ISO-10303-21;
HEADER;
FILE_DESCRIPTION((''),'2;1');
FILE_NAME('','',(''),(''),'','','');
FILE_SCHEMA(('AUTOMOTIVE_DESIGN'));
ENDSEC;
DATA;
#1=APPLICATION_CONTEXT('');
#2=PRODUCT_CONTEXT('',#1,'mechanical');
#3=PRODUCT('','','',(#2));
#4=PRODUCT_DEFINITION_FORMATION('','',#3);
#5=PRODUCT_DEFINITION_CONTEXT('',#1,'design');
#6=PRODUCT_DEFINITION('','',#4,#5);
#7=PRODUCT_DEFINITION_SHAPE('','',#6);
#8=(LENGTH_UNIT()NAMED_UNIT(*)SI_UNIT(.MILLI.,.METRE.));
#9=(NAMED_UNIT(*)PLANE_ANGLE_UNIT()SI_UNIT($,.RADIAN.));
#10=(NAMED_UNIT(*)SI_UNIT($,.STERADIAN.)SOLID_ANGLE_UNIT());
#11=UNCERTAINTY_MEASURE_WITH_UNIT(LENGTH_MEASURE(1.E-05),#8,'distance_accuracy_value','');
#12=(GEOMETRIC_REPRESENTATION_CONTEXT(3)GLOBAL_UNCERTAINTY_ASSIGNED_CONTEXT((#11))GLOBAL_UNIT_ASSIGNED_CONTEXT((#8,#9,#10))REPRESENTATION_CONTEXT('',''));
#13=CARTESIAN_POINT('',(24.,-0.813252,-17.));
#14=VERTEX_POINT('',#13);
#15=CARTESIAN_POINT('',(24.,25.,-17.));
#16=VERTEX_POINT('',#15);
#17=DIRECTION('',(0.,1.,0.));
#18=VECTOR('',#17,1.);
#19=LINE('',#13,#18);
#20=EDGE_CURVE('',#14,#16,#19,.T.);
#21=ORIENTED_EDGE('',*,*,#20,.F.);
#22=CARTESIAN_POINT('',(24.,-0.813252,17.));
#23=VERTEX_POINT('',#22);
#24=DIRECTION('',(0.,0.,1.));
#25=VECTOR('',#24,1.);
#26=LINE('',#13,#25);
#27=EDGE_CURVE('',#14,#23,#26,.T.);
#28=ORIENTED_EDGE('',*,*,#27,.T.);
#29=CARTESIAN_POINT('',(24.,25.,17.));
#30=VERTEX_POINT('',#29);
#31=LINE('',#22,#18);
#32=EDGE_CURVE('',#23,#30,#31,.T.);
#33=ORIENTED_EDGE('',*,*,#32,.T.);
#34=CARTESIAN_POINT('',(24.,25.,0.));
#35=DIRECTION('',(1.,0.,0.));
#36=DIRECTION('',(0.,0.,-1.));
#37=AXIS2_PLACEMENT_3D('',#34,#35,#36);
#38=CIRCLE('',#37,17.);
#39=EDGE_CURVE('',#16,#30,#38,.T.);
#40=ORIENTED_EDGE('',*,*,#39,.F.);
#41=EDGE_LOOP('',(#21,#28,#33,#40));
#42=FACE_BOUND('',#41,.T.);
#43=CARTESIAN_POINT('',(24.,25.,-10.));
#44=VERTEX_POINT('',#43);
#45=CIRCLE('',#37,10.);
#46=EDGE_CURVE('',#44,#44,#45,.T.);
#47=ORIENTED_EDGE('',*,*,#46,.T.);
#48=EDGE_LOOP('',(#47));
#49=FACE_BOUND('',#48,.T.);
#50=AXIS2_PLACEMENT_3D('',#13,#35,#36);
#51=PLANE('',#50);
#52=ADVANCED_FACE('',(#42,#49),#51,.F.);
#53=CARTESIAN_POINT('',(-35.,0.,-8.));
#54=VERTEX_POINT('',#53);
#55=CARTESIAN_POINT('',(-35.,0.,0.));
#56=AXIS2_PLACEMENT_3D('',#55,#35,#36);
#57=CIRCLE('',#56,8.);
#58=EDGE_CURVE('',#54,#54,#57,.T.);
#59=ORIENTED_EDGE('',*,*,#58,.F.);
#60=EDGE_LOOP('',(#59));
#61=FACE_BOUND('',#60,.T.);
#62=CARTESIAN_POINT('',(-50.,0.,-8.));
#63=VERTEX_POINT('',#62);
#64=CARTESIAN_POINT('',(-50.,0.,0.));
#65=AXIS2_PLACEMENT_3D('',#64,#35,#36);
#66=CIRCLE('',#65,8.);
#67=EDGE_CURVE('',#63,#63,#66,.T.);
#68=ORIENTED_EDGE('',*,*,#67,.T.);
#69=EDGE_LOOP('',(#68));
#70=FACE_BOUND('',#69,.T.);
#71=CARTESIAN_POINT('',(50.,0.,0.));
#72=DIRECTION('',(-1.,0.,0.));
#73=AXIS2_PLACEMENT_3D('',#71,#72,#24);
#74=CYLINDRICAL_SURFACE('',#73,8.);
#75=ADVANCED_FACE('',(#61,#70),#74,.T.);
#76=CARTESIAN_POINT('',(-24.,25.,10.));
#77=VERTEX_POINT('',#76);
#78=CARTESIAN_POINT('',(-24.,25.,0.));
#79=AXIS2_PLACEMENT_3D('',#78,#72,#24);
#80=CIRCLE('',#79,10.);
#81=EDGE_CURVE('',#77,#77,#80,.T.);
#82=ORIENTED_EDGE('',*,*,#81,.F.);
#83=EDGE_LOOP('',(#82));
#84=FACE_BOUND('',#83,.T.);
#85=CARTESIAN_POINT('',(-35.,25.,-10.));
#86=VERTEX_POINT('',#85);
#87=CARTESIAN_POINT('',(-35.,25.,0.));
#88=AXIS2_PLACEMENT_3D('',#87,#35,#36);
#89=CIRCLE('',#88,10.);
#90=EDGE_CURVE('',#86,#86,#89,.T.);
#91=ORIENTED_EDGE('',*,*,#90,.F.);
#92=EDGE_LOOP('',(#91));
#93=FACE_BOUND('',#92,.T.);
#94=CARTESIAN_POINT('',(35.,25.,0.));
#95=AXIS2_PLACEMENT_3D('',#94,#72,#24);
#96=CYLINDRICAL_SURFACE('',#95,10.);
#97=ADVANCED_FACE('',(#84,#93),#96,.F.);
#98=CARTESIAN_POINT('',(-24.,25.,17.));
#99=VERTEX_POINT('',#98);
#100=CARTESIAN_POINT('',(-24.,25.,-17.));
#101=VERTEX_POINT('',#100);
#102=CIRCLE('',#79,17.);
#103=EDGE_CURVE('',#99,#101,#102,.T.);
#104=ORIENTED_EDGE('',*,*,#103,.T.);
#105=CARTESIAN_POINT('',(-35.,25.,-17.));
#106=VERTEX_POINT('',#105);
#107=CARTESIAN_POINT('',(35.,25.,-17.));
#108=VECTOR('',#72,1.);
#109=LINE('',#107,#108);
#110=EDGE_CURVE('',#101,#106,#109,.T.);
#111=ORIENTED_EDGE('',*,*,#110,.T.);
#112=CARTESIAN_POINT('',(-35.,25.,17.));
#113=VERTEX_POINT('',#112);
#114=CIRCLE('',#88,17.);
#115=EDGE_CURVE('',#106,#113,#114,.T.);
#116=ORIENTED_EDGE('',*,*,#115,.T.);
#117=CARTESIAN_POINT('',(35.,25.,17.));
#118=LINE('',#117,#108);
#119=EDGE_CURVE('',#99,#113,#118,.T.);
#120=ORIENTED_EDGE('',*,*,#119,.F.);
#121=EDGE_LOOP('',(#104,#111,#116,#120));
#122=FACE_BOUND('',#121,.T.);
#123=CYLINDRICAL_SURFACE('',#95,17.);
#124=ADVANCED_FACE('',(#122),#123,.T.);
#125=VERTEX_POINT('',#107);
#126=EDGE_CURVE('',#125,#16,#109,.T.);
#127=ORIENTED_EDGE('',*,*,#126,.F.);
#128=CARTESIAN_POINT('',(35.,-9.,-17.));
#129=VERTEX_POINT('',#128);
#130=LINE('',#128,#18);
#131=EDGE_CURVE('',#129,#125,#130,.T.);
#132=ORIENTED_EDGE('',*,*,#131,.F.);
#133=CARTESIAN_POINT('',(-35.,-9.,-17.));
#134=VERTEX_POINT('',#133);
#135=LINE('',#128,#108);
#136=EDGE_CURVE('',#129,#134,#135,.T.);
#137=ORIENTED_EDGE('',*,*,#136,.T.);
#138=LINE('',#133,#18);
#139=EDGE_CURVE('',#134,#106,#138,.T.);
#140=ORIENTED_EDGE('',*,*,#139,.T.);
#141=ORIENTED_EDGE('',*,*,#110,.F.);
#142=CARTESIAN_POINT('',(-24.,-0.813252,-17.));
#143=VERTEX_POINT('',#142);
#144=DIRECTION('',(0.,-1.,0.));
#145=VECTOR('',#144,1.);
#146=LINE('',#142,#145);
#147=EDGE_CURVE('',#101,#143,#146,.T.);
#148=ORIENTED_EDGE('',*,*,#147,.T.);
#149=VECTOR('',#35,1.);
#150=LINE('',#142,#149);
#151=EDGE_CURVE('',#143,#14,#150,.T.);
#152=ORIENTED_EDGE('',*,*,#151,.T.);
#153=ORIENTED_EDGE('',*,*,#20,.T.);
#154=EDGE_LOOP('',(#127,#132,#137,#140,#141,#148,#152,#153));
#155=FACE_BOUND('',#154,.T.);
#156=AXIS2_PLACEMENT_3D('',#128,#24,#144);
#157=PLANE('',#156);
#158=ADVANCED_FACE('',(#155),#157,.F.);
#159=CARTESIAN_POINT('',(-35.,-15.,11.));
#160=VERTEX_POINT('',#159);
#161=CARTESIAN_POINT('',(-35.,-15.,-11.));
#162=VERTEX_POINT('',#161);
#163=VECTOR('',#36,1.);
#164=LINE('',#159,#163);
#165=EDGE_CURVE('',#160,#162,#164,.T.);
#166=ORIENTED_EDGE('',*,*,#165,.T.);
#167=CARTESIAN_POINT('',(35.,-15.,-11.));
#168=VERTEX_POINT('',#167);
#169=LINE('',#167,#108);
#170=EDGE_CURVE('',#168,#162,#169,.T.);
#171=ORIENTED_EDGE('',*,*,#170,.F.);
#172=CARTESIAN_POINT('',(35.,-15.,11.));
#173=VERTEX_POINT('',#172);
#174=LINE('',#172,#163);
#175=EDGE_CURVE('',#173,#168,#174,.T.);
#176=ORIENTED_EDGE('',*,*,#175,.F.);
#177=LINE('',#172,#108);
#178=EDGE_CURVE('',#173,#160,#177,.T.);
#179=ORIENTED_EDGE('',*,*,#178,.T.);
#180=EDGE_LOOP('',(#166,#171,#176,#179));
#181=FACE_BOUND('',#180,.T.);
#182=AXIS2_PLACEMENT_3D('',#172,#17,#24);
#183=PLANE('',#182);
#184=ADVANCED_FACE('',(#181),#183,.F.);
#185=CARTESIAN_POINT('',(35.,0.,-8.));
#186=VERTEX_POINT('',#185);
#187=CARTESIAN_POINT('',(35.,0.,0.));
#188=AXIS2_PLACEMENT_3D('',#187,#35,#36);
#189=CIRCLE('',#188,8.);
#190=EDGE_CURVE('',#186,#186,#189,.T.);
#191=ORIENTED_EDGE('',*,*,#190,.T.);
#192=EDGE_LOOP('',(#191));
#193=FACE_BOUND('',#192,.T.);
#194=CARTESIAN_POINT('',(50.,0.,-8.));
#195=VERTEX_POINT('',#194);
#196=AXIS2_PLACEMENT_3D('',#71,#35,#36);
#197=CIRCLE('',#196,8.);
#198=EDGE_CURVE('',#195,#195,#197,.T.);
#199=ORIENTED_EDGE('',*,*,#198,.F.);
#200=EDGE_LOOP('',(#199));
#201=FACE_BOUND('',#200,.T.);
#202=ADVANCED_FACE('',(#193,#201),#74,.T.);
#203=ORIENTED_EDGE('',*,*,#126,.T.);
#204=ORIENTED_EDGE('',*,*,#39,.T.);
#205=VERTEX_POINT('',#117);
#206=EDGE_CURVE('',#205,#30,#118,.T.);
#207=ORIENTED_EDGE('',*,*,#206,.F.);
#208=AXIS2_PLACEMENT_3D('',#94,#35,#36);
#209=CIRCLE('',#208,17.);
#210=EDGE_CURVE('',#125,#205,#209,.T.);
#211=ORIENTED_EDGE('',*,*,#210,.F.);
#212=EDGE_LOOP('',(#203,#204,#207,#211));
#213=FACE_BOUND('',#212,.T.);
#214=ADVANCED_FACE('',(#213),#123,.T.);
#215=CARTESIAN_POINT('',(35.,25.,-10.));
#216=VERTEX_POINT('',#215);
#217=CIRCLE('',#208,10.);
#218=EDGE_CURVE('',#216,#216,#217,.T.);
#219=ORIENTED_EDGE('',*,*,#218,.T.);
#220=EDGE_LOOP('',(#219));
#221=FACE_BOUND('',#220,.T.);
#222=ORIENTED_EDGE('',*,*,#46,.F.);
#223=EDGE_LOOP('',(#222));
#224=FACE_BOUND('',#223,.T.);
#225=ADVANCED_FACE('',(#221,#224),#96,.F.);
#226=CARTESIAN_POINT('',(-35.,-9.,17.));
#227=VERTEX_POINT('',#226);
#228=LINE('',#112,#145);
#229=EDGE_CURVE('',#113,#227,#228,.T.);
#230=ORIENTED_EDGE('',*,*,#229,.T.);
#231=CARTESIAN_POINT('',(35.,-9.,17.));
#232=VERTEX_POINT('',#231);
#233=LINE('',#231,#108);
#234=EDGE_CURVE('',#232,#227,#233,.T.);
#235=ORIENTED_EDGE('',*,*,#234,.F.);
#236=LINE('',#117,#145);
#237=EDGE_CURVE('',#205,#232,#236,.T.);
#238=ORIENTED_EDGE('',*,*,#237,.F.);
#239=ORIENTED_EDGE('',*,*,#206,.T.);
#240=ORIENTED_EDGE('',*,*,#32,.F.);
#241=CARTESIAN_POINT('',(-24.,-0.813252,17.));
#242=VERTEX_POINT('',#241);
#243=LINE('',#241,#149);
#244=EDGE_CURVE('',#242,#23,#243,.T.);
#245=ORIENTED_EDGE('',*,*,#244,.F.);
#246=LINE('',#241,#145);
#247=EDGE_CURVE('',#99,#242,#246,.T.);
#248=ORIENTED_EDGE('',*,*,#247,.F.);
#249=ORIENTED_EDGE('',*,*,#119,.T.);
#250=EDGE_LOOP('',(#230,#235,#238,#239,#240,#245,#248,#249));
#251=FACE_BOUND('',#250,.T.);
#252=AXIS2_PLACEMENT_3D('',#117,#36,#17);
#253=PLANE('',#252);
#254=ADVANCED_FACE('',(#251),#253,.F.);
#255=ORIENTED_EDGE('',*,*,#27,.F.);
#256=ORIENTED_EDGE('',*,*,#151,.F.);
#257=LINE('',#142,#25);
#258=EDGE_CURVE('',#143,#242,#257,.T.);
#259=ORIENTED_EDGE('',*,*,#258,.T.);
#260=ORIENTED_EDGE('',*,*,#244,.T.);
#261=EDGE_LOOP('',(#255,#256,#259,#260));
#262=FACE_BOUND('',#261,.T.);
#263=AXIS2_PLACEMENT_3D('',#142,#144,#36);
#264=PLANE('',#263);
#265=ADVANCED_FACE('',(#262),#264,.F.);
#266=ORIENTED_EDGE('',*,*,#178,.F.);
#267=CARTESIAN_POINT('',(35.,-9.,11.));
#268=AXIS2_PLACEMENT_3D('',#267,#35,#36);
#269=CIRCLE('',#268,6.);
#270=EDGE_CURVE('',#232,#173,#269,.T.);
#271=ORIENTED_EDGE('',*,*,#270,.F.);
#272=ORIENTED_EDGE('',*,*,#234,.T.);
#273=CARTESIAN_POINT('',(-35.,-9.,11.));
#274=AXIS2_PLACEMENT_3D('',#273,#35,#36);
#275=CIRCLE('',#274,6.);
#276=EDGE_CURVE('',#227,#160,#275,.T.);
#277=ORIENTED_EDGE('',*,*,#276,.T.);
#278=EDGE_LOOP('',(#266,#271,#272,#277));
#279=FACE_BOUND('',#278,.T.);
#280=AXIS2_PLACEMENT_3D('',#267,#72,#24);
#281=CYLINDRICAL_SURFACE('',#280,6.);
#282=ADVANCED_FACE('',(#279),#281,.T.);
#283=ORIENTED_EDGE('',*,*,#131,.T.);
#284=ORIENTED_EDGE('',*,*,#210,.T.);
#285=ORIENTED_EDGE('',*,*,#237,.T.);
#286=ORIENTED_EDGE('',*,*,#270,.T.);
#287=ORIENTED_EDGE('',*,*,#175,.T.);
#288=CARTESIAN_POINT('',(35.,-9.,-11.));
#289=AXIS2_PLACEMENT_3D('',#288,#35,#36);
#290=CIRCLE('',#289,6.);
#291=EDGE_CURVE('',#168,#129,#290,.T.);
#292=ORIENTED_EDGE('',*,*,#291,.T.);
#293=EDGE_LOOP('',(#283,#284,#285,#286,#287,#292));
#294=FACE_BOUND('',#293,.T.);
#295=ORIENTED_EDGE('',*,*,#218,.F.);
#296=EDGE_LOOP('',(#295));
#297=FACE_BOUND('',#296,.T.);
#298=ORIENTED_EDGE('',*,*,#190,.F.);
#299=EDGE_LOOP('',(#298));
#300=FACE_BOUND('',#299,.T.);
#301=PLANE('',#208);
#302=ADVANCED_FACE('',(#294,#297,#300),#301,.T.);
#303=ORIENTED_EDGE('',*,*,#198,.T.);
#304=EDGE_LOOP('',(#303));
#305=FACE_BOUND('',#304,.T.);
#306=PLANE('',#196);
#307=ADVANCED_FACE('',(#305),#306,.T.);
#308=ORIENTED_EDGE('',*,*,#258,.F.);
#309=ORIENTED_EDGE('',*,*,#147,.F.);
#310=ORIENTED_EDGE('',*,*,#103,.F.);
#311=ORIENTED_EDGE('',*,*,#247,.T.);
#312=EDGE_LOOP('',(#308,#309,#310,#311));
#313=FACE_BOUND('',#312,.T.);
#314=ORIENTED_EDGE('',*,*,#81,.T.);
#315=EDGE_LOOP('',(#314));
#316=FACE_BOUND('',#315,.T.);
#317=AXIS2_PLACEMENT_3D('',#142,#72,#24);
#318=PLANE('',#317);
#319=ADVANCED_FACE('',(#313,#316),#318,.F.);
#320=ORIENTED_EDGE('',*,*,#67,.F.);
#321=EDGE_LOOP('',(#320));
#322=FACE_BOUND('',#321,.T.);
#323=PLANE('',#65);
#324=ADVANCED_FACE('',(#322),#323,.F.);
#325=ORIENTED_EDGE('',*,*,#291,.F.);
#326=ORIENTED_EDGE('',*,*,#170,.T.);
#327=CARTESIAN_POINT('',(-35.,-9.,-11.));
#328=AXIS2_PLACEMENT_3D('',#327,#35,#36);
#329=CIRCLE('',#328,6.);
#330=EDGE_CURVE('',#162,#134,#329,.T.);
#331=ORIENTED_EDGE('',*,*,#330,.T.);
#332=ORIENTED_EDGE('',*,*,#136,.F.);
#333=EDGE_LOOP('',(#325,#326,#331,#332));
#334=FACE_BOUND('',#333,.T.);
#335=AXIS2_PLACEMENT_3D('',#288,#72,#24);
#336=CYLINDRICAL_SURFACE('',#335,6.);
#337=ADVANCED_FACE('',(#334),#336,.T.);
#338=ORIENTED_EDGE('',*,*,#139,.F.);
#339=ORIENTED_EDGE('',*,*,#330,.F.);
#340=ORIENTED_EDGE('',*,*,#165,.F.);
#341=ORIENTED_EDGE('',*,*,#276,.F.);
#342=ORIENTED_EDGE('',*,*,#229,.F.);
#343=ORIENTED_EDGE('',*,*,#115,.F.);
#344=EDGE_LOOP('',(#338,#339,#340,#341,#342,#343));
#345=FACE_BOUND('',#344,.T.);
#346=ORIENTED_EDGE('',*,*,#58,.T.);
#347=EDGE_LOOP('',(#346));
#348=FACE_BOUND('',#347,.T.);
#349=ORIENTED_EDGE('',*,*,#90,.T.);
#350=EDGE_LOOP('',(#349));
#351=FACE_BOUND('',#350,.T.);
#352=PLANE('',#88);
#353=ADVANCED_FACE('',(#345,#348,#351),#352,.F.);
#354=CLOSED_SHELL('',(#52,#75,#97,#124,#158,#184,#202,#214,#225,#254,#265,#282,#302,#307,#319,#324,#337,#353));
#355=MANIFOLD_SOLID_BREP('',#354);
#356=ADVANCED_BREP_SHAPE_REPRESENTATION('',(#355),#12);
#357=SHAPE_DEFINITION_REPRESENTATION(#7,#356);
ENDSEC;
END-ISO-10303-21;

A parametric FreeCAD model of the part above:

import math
import FreeCAD as App
import Part
import Sketcher
Q = App.Units.Quantity


def add_polygon(sketch, points):
    """Adds a closed chain of lines whose ends are joined by coincident constraints."""
    first, n = sketch.GeometryCount, len(points)
    for a, b in zip(points, points[1:] + points[:1]):
        sketch.addGeometry(Part.LineSegment(App.Vector(*a, 0), App.Vector(*b, 0)), False)
    for i in range(n):
        sketch.addConstraint(Sketcher.Constraint("Coincident", first + i, 2, first + (i + 1) % n, 1))

doc = App.newDocument("Part")
body = doc.addObject("PartDesign::Body", "Body")

# Sketch on YZ plane
sketch1 = doc.addObject("Sketcher::SketchObject", "Sketch")
body.addObject(sketch1)
sketch1.AttachmentSupport = (doc.YZ_Plane, [""])
sketch1.MapMode = "FlatFace"
sketch1.addGeometry(Part.Circle(App.Vector(0, 0, 0), App.Vector(0, 0, 1), 8), False)
sketch1.addConstraint(Sketcher.Constraint("Coincident", 0, 3, -1, 1))
sketch1.addConstraint(Sketcher.Constraint("Diameter", 0, Q("16 mm")))
pad1 = doc.addObject("PartDesign::Pad", "Pad")
body.addObject(pad1)
pad1.Profile = sketch1
pad1.Length = 100
pad1.Midplane = True

# Sketch on YZ plane
sketch2 = doc.addObject("Sketcher::SketchObject", "Sketch001")
body.addObject(sketch2)
sketch2.AttachmentSupport = (doc.YZ_Plane, [""])
sketch2.MapMode = "FlatFace"
sketch2.addGeometry(Part.LineSegment(App.Vector(-15, 11, 0), App.Vector(-15, -11, 0)), False)
sketch2.addGeometry(Part.ArcOfCircle(Part.Circle(App.Vector(-9, -11, 0), App.Vector(0, 0, 1), 6), math.radians(180), math.radians(270)), False)
sketch2.addGeometry(Part.LineSegment(App.Vector(-9, -17, 0), App.Vector(25, -17, 0)), False)
sketch2.addGeometry(Part.ArcOfCircle(Part.Circle(App.Vector(25, 0, 0), App.Vector(0, 0, 1), 17), math.radians(-90), math.radians(90)), False)
sketch2.addGeometry(Part.LineSegment(App.Vector(25, 17, 0), App.Vector(-9, 17, 0)), False)
sketch2.addGeometry(Part.ArcOfCircle(Part.Circle(App.Vector(-9, 11, 0), App.Vector(0, 0, 1), 6), math.radians(90), math.radians(180)), False)
sketch2.addGeometry(Part.Circle(App.Vector(25, 0, 0), App.Vector(0, 0, 1), 10), False)
sketch2.addConstraint(Sketcher.Constraint("Tangent", 0, 2, 1, 1))
sketch2.addConstraint(Sketcher.Constraint("Tangent", 1, 2, 2, 1))
sketch2.addConstraint(Sketcher.Constraint("Tangent", 2, 2, 3, 1))
sketch2.addConstraint(Sketcher.Constraint("Tangent", 3, 2, 4, 1))
sketch2.addConstraint(Sketcher.Constraint("Tangent", 4, 2, 5, 1))
sketch2.addConstraint(Sketcher.Constraint("Tangent", 5, 2, 0, 1))
sketch2.addConstraint(Sketcher.Constraint("Vertical", 0))
sketch2.addConstraint(Sketcher.Constraint("Horizontal", 2))
sketch2.addConstraint(Sketcher.Constraint("Horizontal", 4))
sketch2.addConstraint(Sketcher.Constraint("Coincident", 6, 3, 3, 3))
sketch2.addConstraint(Sketcher.Constraint("Equal", 1, 5))
sketch2.addConstraint(Sketcher.Constraint("PointOnObject", 3, 3, -1))
sketch2.addConstraint(Sketcher.Constraint("Diameter", 6, Q("20 mm")))
sketch2.addConstraint(Sketcher.Constraint("Radius", 1, Q("6 mm")))
sketch2.addConstraint(Sketcher.Constraint("Radius", 3, Q("17 mm")))
sketch2.addConstraint(Sketcher.Constraint("DistanceX", 2, 1, 2, 2, Q("34 mm")))
sketch2.addConstraint(Sketcher.Constraint("DistanceX", 1, 3, -1, 1, Q("9 mm")))
pad2 = doc.addObject("PartDesign::Pad", "Pad001")
body.addObject(pad2)
pad2.Profile = sketch2
pad2.Length = 70
pad2.Midplane = True

# Sketch on XY plane
sketch3 = doc.addObject("Sketcher::SketchObject", "Sketch002")
body.addObject(sketch3)
sketch3.AttachmentSupport = (doc.XY_Plane, [""])
sketch3.MapMode = "FlatFace"
sketch3.AttachmentOffset = App.Placement(App.Vector(0, 0, 17), App.Rotation())
add_polygon(sketch3, [(-24, 42), (-24, -0.813252), (24, -0.813252), (24, 42)])  # lines 0-3
sketch3.addConstraint(Sketcher.Constraint("Vertical", 0))
sketch3.addConstraint(Sketcher.Constraint("Horizontal", 1))
sketch3.addConstraint(Sketcher.Constraint("Vertical", 2))
sketch3.addConstraint(Sketcher.Constraint("Horizontal", 3))
sketch3.addConstraint(Sketcher.Constraint("DistanceX", 1, 1, 1, 2, Q("48 mm")))
sketch3.addConstraint(Sketcher.Constraint("DistanceX", 0, 2, -1, 1, Q("24 mm")))
sketch3.addConstraint(Sketcher.Constraint("DistanceY", -1, 1, 2, 2, Q("42 mm")))
sketch3.addConstraint(Sketcher.Constraint("DistanceY", 0, 2, 0, 1, Q("42.813252 mm")))
pocket1 = doc.addObject("PartDesign::Pocket", "Pocket")
body.addObject(pocket1)
pocket1.Profile = sketch3
pocket1.Type = "ThroughAll"

doc.recompute()
